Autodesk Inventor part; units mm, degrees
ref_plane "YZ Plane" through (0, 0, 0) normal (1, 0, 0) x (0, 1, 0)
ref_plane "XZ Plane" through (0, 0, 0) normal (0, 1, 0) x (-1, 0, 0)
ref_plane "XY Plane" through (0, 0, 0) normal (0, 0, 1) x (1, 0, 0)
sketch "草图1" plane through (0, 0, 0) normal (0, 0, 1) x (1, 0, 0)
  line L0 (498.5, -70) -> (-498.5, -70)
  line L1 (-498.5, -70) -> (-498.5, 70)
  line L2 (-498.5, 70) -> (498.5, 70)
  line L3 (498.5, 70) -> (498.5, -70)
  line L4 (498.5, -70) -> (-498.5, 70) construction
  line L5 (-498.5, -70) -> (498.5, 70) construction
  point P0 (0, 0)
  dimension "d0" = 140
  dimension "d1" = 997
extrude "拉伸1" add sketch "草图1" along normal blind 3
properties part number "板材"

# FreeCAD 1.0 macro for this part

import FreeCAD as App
import Part
import Sketcher
Q = App.Units.Quantity

doc = App.newDocument("Part")
params = doc.addObject("Spreadsheet::Sheet", "Params")
for row, (alias, value) in enumerate([
    ("sketch1_width", "997 mm"),
    ("sketch1_height", "140 mm"),
    ("pad1_length", "3 mm"),
], start=1):
    params.set(f"A{row}", alias)
    params.set(f"B{row}", "=" + value)
    params.setAlias(f"B{row}", alias)

body = doc.addObject("PartDesign::Body", "Body")

sketch1 = body.newObject("Sketcher::SketchObject", "Sketch")
sketch1.AttachmentSupport = (doc.getObject("XY_Plane"), [""])
sketch1.MapMode = "FlatFace"
sketch1.addGeometry([
    Part.LineSegment(App.Vector(-498.5, -70, 0), App.Vector(498.5, -70, 0)),
    Part.LineSegment(App.Vector(498.5, -70, 0), App.Vector(498.5, 70, 0)),
    Part.LineSegment(App.Vector(498.5, 70, 0), App.Vector(-498.5, 70, 0)),
    Part.LineSegment(App.Vector(-498.5, 70, 0), App.Vector(-498.5, -70, 0)),
], False)
sketch1.addConstraint([
    Sketcher.Constraint("Coincident", 0, 2, 1, 1),
    Sketcher.Constraint("Coincident", 1, 2, 2, 1),
    Sketcher.Constraint("Coincident", 2, 2, 3, 1),
    Sketcher.Constraint("Coincident", 3, 2, 0, 1),
    Sketcher.Constraint("Horizontal", 0),
    Sketcher.Constraint("Vertical", 1),
    Sketcher.Constraint("Horizontal", 2),
    Sketcher.Constraint("Vertical", 3),
    Sketcher.Constraint("Symmetric", 0, 2, 2, 2, -1, 1),
    Sketcher.Constraint("DistanceX", 0, 1, 0, 2, Q("997 mm")),
    Sketcher.Constraint("DistanceY", 1, 1, 1, 2, Q("140 mm")),
])
sketch1.setExpression("Constraints[9]", "Params.sketch1_width")
sketch1.setExpression("Constraints[10]", "Params.sketch1_height")
pad1 = body.newObject("PartDesign::Pad", "Pad")
pad1.Profile = sketch1
pad1.setExpression("Length", "Params.pad1_length")

doc.recompute()
